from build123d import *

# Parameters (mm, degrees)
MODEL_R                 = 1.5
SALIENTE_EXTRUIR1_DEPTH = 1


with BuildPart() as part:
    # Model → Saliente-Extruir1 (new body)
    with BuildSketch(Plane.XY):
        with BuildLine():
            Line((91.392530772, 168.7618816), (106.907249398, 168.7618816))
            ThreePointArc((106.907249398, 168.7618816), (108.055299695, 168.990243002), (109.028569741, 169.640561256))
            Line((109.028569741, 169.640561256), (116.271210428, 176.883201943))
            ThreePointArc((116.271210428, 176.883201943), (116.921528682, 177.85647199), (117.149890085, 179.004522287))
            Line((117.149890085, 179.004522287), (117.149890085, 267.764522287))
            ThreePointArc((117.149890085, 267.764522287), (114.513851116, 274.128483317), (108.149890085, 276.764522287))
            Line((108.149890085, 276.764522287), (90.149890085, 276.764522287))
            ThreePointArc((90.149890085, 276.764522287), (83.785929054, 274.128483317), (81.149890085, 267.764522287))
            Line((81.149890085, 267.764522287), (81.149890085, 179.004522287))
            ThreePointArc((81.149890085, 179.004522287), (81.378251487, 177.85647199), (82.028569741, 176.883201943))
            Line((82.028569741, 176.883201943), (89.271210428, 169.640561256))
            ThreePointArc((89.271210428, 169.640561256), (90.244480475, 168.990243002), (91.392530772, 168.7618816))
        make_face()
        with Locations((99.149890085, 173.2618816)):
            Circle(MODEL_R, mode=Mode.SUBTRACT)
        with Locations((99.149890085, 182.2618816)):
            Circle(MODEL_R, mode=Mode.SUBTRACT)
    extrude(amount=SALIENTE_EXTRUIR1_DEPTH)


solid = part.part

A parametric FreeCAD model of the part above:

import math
import FreeCAD as App
import Part
import Sketcher
from FreeCAD import Vector
Q = App.Units.Quantity

doc = App.newDocument("Part")
body = doc.addObject("PartDesign::Body", "Body")

sketch1 = body.newObject("Sketcher::SketchObject", "Sketch")
sketch1.AttachmentSupport = (doc.getObject("XY_Plane"), [""])
sketch1.MapMode = "FlatFace"
sketch1.addGeometry([
    Part.LineSegment(Vector(91.4, 168.8, 0), Vector(106.9, 168.8, 0)),
    Part.ArcOfCircle(Part.Circle(Vector(106.9, 171.8, 0), Vector(0, 0, 1), 3), math.radians(-90), math.radians(-45)),
    Part.LineSegment(Vector(109, 169.6, 0), Vector(116.3, 176.9, 0)),
    Part.ArcOfCircle(Part.Circle(Vector(114.1, 179, 0), Vector(0, 0, 1), 3), math.radians(-45), math.radians(0)),
    Part.LineSegment(Vector(117.1, 179, 0), Vector(117.1, 267.8, 0)),
    Part.ArcOfCircle(Part.Circle(Vector(108.1, 267.8, 0), Vector(0, 0, 1), 9), math.radians(0), math.radians(90)),
    Part.LineSegment(Vector(108.1, 276.8, 0), Vector(90.1, 276.8, 0)),
    Part.ArcOfCircle(Part.Circle(Vector(90.1, 267.8, 0), Vector(0, 0, 1), 9), math.radians(90), math.radians(180)),
    Part.LineSegment(Vector(81.1, 267.8, 0), Vector(81.1, 179, 0)),
    Part.ArcOfCircle(Part.Circle(Vector(84.1, 179, 0), Vector(0, 0, 1), 3), math.radians(180), math.radians(225)),
    Part.LineSegment(Vector(82, 176.9, 0), Vector(89.3, 169.6, 0)),
    Part.ArcOfCircle(Part.Circle(Vector(91.4, 171.8, 0), Vector(0, 0, 1), 3), math.radians(-135), math.radians(-90)),
    Part.Circle(Vector(99.1, 173.3, 0), Vector(0, 0, 1), 1.5),
    Part.Circle(Vector(99.1, 182.3, 0), Vector(0, 0, 1), 1.5),
], False)
sketch1.addConstraint([
    Sketcher.Constraint("Tangent", 0, 2, 1, 1),
    Sketcher.Constraint("Tangent", 1, 2, 2, 1),
    Sketcher.Constraint("Tangent", 2, 2, 3, 1),
    Sketcher.Constraint("Tangent", 3, 2, 4, 1),
    Sketcher.Constraint("Tangent", 4, 2, 5, 1),
    Sketcher.Constraint("Tangent", 5, 2, 6, 1),
    Sketcher.Constraint("Tangent", 6, 2, 7, 1),
    Sketcher.Constraint("Tangent", 7, 2, 8, 1),
    Sketcher.Constraint("Tangent", 8, 2, 9, 1),
    Sketcher.Constraint("Tangent", 9, 2, 10, 1),
    Sketcher.Constraint("Tangent", 10, 2, 11, 1),
    Sketcher.Constraint("Tangent", 11, 2, 0, 1),
    Sketcher.Constraint("Horizontal", 0),
    Sketcher.Constraint("Vertical", 4),
    Sketcher.Constraint("Horizontal", 6),
    Sketcher.Constraint("Vertical", 8),
    Sketcher.Constraint("Equal", 1, 3),
    Sketcher.Constraint("Equal", 5, 7),
    Sketcher.Constraint("Equal", 3, 9),
    Sketcher.Constraint("Equal", 9, 11),
    Sketcher.Constraint("Equal", 12, 13),
    Sketcher.Constraint("Perpendicular", 2, 10),
    Sketcher.Constraint("Horizontal", 3, 3, 9, 3),
    Sketcher.Constraint("Horizontal", 2, 2, 9, 2),
    Sketcher.Constraint("Vertical", 12, 3, 13, 3),
    Sketcher.Constraint("Diameter", 12, Q("3 mm")),
    Sketcher.Constraint("Radius", 1, Q("3 mm")),
    Sketcher.Constraint("Radius", 5, Q("9 mm")),
    Sketcher.Constraint("DistanceX", 6, 2, 6, 1, Q("18 mm")),
    Sketcher.Constraint("DistanceX", 12, 3, 3, 3, Q("15 mm")),
    Sketcher.Constraint("DistanceY", 12, 3, 13, 3, Q("9 mm")),
    Sketcher.Constraint("DistanceY", 4, 1, 4, 2, Q("88.76 mm")),
    Sketcher.Constraint("DistanceY", 11, 3, 12, 3, Q("1.5 mm")),
    Sketcher.Constraint("DistanceX", 0, 1, 0, 2, Q("15.514719 mm")),
    Sketcher.Constraint("DistanceY", -1, 1, 2, 2, Q("176.883202 mm")),
    Sketcher.Constraint("DistanceX", -1, 1, 1, 3, Q("106.907249 mm")),
])
pad1 = body.newObject("PartDesign::Pad", "Pad")
pad1.Profile = sketch1
pad1.Length = 1

doc.recompute()
